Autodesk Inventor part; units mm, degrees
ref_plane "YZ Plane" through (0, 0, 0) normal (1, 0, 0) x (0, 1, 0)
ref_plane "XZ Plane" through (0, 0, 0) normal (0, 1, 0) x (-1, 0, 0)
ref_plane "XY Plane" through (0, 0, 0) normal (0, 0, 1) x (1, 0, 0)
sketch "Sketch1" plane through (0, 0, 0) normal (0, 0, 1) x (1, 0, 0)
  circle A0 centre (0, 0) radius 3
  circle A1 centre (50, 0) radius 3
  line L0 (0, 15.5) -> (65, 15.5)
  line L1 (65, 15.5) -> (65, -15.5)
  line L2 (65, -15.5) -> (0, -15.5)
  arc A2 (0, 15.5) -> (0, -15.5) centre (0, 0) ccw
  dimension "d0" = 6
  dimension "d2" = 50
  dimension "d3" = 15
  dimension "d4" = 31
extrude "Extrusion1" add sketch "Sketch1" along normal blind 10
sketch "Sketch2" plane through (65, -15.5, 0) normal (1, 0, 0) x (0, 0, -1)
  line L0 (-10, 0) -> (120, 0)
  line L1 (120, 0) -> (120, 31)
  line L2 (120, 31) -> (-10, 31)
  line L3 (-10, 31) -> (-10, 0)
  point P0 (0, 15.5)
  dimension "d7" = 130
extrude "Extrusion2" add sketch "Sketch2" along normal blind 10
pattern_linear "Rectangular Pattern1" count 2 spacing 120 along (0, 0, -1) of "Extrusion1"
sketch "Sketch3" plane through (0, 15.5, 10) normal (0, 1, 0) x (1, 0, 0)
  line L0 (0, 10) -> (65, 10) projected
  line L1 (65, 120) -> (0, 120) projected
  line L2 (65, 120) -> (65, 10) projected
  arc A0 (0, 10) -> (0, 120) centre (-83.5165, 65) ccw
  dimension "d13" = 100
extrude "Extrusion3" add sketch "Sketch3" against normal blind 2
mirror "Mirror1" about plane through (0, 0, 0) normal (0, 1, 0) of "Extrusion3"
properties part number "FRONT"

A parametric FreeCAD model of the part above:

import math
import FreeCAD as App
import Part
import Sketcher

V = App.Vector

doc = App.newDocument("Part")
body = doc.addObject("PartDesign::Body", "Body")

# Sketch on XY plane
sketch1 = doc.addObject("Sketcher::SketchObject", "Sketch")
body.addObject(sketch1)
sketch1.AttachmentSupport = (doc.XY_Plane, [""])
sketch1.MapMode = "FlatFace"
sketch1.addGeometry(Part.LineSegment(V(65, 15.5, 0), V(0, 15.5, 0)), False)
sketch1.addGeometry(Part.ArcOfCircle(Part.Circle(V(0, 0, 0), V(0, 0, 1), 15.5), math.radians(90), math.radians(270)), False)
sketch1.addGeometry(Part.LineSegment(V(0, -15.5, 0), V(65, -15.5, 0)), False)
sketch1.addGeometry(Part.LineSegment(V(65, -15.5, 0), V(65, 15.5, 0)), False)
sketch1.addGeometry(Part.Circle(V(0, 0, 0), V(0, 0, 1), 3), False)
sketch1.addGeometry(Part.Circle(V(50, 0, 0), V(0, 0, 1), 3), False)
sketch1.addConstraint(Sketcher.Constraint("Tangent", 0, 2, 1, 1))
sketch1.addConstraint(Sketcher.Constraint("Tangent", 1, 2, 2, 1))
sketch1.addConstraint(Sketcher.Constraint("Coincident", 2, 2, 3, 1))
sketch1.addConstraint(Sketcher.Constraint("Coincident", 3, 2, 0, 1))
sketch1.addConstraint(Sketcher.Constraint("Horizontal", 0))
sketch1.addConstraint(Sketcher.Constraint("Horizontal", 2))
sketch1.addConstraint(Sketcher.Constraint("Vertical", 3))
sketch1.addConstraint(Sketcher.Constraint("Coincident", 1, 3, -1, 1))
sketch1.addConstraint(Sketcher.Constraint("Coincident", 4, 3, -1, 1))
sketch1.addConstraint(Sketcher.Constraint("Equal", 4, 5))
sketch1.addConstraint(Sketcher.Constraint("PointOnObject", 5, 3, -1))
sketch1.addConstraint(Sketcher.Constraint("Diameter", 4, 6.0))
sketch1.addConstraint(Sketcher.Constraint("Radius", 1, 15.5))
sketch1.addConstraint(Sketcher.Constraint("DistanceX", -1, 1, 5, 3, 50.0))
sketch1.addConstraint(Sketcher.Constraint("DistanceX", 5, 3, 2, 2, 15.0))
pad1 = doc.addObject("PartDesign::Pad", "Pad")
body.addObject(pad1)
pad1.Profile = sketch1
pad1.Length = 10

# Sketch on YZ plane
sketch2 = doc.addObject("Sketcher::SketchObject", "Sketch001")
body.addObject(sketch2)
sketch2.AttachmentSupport = (doc.YZ_Plane, [""])
sketch2.MapMode = "FlatFace"
sketch2.AttachmentOffset = App.Placement(V(0, 0, 65), App.Rotation())
sketch2.addGeometry(Part.LineSegment(V(16, 10, 0), V(-16, 10, 0)), False)
sketch2.addGeometry(Part.LineSegment(V(-16, 10, 0), V(-16, -120, 0)), False)
sketch2.addGeometry(Part.LineSegment(V(-16, -120, 0), V(16, -120, 0)), False)
sketch2.addGeometry(Part.LineSegment(V(16, -120, 0), V(16, 10, 0)), False)
sketch2.addConstraint(Sketcher.Constraint("Coincident", 0, 2, 1, 1))
sketch2.addConstraint(Sketcher.Constraint("Coincident", 1, 2, 2, 1))
sketch2.addConstraint(Sketcher.Constraint("Coincident", 2, 2, 3, 1))
sketch2.addConstraint(Sketcher.Constraint("Coincident", 3, 2, 0, 1))
sketch2.addConstraint(Sketcher.Constraint("Horizontal", 0))
sketch2.addConstraint(Sketcher.Constraint("Vertical", 1))
sketch2.addConstraint(Sketcher.Constraint("Horizontal", 2))
sketch2.addConstraint(Sketcher.Constraint("Vertical", 3))
sketch2.addConstraint(Sketcher.Constraint("DistanceY", 1, 2, 1, 1, 130.0))
sketch2.addConstraint(Sketcher.Constraint("DistanceX", 0, 2, 0, 1, 31.0))
sketch2.addConstraint(Sketcher.Constraint("DistanceY", -1, 1, 0, 2, 10.0))
sketch2.addConstraint(Sketcher.Constraint("DistanceX", 0, 2, -1, 1, 15.5))
pad2 = doc.addObject("PartDesign::Pad", "Pad001")
body.addObject(pad2)
pad2.Profile = sketch2
pad2.Length = 10
doc.recompute()

linearpattern = doc.addObject("PartDesign::LinearPattern", "LinearPattern")
body.addObject(linearpattern)
linearpattern.Originals = [pad1]
linearpattern.Direction = (doc.Z_Axis, [""])
linearpattern.Mode = "offset"
linearpattern.Offset = 120
linearpattern.Occurrences = 2
linearpattern.Reversed = True
body.Tip = linearpattern

# Sketch on XZ plane
sketch3 = doc.addObject("Sketcher::SketchObject", "Sketch002")
body.addObject(sketch3)
sketch3.AttachmentSupport = (doc.XZ_Plane, [""])
sketch3.MapMode = "FlatFace"
sketch3.AttachmentOffset = App.Placement(V(0, 0, -15.5), App.Rotation())
sketch3.addGeometry(Part.ArcOfCircle(Part.Circle(V(-84, -55, 0), V(0, 0, 1), 100), math.radians(-33), math.radians(33)), False)
sketch3.addGeometry(Part.LineSegment(V(0, 0, 0), V(65, 0, 0)), False)
sketch3.addGeometry(Part.LineSegment(V(65, 0, 0), V(65, -110, 0)), False)
sketch3.addGeometry(Part.LineSegment(V(65, -110, 0), V(0, -110, 0)), False)
sketch3.addConstraint(Sketcher.Constraint("Coincident", 0, 2, 1, 1))
sketch3.addConstraint(Sketcher.Constraint("Coincident", 1, 2, 2, 1))
sketch3.addConstraint(Sketcher.Constraint("Coincident", 2, 2, 3, 1))
sketch3.addConstraint(Sketcher.Constraint("Coincident", 3, 2, 0, 1))
sketch3.addConstraint(Sketcher.Constraint("Horizontal", 1))
sketch3.addConstraint(Sketcher.Constraint("Vertical", 2))
sketch3.addConstraint(Sketcher.Constraint("Horizontal", 3))
sketch3.addConstraint(Sketcher.Constraint("Coincident", 0, 2, -1, 1))
sketch3.addConstraint(Sketcher.Constraint("PointOnObject", 3, 2, -2))
sketch3.addConstraint(Sketcher.Constraint("Radius", 0, 100.0))
sketch3.addConstraint(Sketcher.Constraint("DistanceX", 1, 1, 1, 2, 65.0))
sketch3.addConstraint(Sketcher.Constraint("DistanceY", 2, 2, 2, 1, 110.0))
pad3 = doc.addObject("PartDesign::Pad", "Pad002")
body.addObject(pad3)
pad3.Profile = sketch3
pad3.Length = 2
doc.recompute()

mirrored = doc.addObject("PartDesign::Mirrored", "Mirrored")
body.addObject(mirrored)
mirrored.Originals = [pad3]
mirrored.MirrorPlane = (doc.XZ_Plane, [""])
body.Tip = mirrored

doc.recompute()
